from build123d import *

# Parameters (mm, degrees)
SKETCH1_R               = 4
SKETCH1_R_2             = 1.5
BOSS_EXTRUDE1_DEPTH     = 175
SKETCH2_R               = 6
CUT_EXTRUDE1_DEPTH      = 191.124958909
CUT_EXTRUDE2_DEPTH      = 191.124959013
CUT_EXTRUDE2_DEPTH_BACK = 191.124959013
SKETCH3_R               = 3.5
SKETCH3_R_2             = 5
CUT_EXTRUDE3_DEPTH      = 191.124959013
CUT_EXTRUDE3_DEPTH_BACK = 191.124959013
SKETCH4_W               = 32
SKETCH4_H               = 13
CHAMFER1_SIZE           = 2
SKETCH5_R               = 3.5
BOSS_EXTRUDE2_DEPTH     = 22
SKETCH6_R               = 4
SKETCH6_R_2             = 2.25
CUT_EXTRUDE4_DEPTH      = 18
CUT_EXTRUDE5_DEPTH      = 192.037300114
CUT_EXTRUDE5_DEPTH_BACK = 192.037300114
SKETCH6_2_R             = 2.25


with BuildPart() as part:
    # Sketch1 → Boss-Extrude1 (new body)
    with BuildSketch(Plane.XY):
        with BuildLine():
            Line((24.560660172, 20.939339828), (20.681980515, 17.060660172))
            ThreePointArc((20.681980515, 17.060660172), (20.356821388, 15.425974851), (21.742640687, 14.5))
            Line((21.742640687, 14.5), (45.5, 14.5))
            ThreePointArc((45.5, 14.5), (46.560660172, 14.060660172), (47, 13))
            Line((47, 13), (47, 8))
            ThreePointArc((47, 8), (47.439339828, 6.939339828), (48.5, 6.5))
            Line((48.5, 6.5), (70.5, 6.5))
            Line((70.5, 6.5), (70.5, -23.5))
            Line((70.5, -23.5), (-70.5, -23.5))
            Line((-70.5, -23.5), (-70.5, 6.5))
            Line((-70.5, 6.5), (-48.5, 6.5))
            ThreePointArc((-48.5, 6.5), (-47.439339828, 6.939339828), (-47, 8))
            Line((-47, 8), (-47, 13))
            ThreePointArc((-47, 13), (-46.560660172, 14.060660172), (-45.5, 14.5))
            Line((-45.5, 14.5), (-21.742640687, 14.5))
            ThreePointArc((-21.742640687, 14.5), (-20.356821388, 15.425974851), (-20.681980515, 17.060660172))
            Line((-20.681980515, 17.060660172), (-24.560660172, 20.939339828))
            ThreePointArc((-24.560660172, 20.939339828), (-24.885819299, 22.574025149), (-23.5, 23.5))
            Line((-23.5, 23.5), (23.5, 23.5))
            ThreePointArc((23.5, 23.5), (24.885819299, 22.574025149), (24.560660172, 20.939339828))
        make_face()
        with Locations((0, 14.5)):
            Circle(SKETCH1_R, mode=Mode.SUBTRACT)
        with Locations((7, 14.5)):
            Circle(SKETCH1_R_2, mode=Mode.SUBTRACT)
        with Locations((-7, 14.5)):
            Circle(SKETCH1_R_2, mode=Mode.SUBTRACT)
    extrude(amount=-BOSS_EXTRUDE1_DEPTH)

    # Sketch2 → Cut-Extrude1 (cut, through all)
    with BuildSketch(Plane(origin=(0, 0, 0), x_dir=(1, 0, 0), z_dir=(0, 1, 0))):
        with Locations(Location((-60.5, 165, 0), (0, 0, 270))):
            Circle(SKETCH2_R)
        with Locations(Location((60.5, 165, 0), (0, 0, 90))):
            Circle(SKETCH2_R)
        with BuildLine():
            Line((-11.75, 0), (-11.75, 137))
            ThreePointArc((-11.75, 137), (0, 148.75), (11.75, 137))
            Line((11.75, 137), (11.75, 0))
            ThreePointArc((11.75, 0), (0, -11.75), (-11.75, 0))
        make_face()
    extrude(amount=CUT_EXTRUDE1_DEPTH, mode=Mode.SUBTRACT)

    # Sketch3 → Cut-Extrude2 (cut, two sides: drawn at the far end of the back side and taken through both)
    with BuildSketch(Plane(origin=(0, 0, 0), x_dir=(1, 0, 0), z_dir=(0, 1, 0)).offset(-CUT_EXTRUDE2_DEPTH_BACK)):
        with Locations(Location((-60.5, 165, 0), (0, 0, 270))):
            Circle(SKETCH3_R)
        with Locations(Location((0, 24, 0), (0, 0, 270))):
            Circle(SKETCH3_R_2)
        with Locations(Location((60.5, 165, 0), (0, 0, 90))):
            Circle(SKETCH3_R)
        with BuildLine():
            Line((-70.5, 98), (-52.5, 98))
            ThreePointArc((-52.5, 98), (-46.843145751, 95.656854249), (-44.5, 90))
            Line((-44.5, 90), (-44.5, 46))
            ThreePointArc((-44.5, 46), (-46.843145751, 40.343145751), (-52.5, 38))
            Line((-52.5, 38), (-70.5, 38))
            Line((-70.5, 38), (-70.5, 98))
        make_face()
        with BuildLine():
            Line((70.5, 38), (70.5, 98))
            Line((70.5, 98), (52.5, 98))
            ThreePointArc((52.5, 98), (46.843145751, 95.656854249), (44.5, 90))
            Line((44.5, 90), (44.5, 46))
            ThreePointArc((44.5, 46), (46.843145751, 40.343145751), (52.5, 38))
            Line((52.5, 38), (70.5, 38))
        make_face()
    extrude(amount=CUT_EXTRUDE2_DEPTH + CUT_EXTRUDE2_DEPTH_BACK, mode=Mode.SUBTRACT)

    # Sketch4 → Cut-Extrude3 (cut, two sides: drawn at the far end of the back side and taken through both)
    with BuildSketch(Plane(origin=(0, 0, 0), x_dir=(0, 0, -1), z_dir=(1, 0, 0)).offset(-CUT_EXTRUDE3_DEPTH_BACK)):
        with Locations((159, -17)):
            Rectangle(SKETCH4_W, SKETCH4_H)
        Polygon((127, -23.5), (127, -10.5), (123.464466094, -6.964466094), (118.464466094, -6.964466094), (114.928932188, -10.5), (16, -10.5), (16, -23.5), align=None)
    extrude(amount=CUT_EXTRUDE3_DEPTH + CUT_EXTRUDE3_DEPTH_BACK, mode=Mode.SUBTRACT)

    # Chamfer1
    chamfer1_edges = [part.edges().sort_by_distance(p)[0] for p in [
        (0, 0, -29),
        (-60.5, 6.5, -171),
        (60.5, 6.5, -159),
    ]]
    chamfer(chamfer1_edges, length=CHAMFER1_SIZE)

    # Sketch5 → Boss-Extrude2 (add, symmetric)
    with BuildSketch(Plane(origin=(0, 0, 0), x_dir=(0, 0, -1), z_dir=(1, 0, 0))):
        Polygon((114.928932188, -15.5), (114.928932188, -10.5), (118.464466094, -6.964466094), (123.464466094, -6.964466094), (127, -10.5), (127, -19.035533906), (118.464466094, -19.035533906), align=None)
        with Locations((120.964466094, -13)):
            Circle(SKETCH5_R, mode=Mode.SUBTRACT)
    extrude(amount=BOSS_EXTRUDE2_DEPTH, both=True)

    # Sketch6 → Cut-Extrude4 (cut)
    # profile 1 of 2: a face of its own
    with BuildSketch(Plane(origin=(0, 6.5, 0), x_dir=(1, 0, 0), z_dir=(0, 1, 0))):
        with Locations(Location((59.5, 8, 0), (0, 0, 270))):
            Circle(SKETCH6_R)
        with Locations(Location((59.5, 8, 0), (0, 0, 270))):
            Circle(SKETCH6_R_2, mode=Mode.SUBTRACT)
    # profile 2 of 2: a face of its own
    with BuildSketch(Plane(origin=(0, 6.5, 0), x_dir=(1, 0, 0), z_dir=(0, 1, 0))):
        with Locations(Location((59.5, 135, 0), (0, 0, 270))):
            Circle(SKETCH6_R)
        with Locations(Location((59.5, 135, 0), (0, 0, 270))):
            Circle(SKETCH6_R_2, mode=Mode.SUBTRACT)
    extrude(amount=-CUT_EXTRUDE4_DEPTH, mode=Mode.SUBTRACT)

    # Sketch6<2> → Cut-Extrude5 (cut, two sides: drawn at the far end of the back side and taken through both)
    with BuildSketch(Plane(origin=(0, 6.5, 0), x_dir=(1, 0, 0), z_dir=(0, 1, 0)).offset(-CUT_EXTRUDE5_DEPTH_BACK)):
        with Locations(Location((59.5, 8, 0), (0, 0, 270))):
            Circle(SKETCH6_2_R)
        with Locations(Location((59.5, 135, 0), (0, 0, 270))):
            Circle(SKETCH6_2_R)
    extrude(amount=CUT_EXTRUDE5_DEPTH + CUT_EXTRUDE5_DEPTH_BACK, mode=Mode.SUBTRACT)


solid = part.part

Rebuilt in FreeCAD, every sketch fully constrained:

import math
import FreeCAD as App
import Part
import Sketcher


def edges_at(feature, points):
    """Names of the edges that pass closest to the given points."""
    edges = feature.Shape.Edges
    near = lambda p: min(range(len(edges)), key=lambda i: edges[i].distToShape(Part.Vertex(*p))[0])
    return sorted({f"Edge{near(p) + 1}" for p in points})

doc = App.newDocument("Part")
body = doc.addObject("PartDesign::Body", "Body")

sketch1 = doc.addObject("Sketcher::SketchObject", "Sketch")
body.addObject(sketch1)
sketch1.AttachmentSupport = (doc.XY_Plane, [""])
sketch1.MapMode = "FlatFace"
sketch1.addGeometry([
    Part.LineSegment(App.Vector(20.681981, 17.06066, 0), App.Vector(24.56066, 20.93934, 0)),
    Part.ArcOfCircle(Part.Circle(App.Vector(23.5, 22, 0), App.Vector(0, 0, 1), 1.5), math.radians(-45), math.radians(90)),
    Part.LineSegment(App.Vector(23.5, 23.5, 0), App.Vector(-23.5, 23.5, 0)),
    Part.ArcOfCircle(Part.Circle(App.Vector(-23.5, 22, 0), App.Vector(0, 0, 1), 1.5), math.radians(90), math.radians(225)),
    Part.LineSegment(App.Vector(-24.56066, 20.93934, 0), App.Vector(-20.681981, 17.06066, 0)),
    Part.ArcOfCircle(Part.Circle(App.Vector(-21.742641, 16, 0), App.Vector(0, 0, 1), 1.5), math.radians(-90), math.radians(45)),
    Part.LineSegment(App.Vector(-21.742641, 14.5, 0), App.Vector(-45.5, 14.5, 0)),
    Part.ArcOfCircle(Part.Circle(App.Vector(-45.5, 13, 0), App.Vector(0, 0, 1), 1.5), math.radians(90), math.radians(180)),
    Part.LineSegment(App.Vector(-47, 13, 0), App.Vector(-47, 8, 0)),
    Part.ArcOfCircle(Part.Circle(App.Vector(-48.5, 8, 0), App.Vector(0, 0, 1), 1.5), math.radians(-90), math.radians(0)),
    Part.LineSegment(App.Vector(-48.5, 6.5, 0), App.Vector(-70.5, 6.5, 0)),
    Part.LineSegment(App.Vector(-70.5, 6.5, 0), App.Vector(-70.5, -23.5, 0)),
    Part.LineSegment(App.Vector(-70.5, -23.5, 0), App.Vector(70.5, -23.5, 0)),
    Part.LineSegment(App.Vector(70.5, -23.5, 0), App.Vector(70.5, 6.5, 0)),
    Part.LineSegment(App.Vector(70.5, 6.5, 0), App.Vector(48.5, 6.5, 0)),
    Part.ArcOfCircle(Part.Circle(App.Vector(48.5, 8, 0), App.Vector(0, 0, 1), 1.5), math.radians(180), math.radians(270)),
    Part.LineSegment(App.Vector(47, 8, 0), App.Vector(47, 13, 0)),
    Part.ArcOfCircle(Part.Circle(App.Vector(45.5, 13, 0), App.Vector(0, 0, 1), 1.5), math.radians(0), math.radians(90)),
    Part.LineSegment(App.Vector(45.5, 14.5, 0), App.Vector(21.742641, 14.5, 0)),
    Part.ArcOfCircle(Part.Circle(App.Vector(21.742641, 16, 0), App.Vector(0, 0, 1), 1.5), math.radians(135), math.radians(270)),
    Part.Circle(App.Vector(7, 14.5, 0), App.Vector(0, 0, 1), 1.5),
    Part.Circle(App.Vector(0, 14.5, 0), App.Vector(0, 0, 1), 4),
    Part.Circle(App.Vector(-7, 14.5, 0), App.Vector(0, 0, 1), 1.5),
], False)
sketch1.addConstraint([
    Sketcher.Constraint("Tangent", 0, 2, 1, 1),
    Sketcher.Constraint("Tangent", 1, 2, 2, 1),
    Sketcher.Constraint("Tangent", 2, 2, 3, 1),
    Sketcher.Constraint("Tangent", 3, 2, 4, 1),
    Sketcher.Constraint("Tangent", 4, 2, 5, 2),
    Sketcher.Constraint("Tangent", 5, 1, 6, 1),
    Sketcher.Constraint("Tangent", 6, 2, 7, 1),
    Sketcher.Constraint("Tangent", 7, 2, 8, 1),
    Sketcher.Constraint("Tangent", 8, 2, 9, 2),
    Sketcher.Constraint("Tangent", 9, 1, 10, 1),
    Sketcher.Constraint("Coincident", 10, 2, 11, 1),
    Sketcher.Constraint("Coincident", 11, 2, 12, 1),
    Sketcher.Constraint("Coincident", 12, 2, 13, 1),
    Sketcher.Constraint("Coincident", 13, 2, 14, 1),
    Sketcher.Constraint("Tangent", 14, 2, 15, 2),
    Sketcher.Constraint("Tangent", 15, 1, 16, 1),
    Sketcher.Constraint("Tangent", 16, 2, 17, 1),
    Sketcher.Constraint("Tangent", 17, 2, 18, 1),
    Sketcher.Constraint("Tangent", 18, 2, 19, 2),
    Sketcher.Constraint("Tangent", 19, 1, 0, 1),
    Sketcher.Constraint("Horizontal", 2),
    Sketcher.Constraint("Horizontal", 6),
    Sketcher.Constraint("Vertical", 8),
    Sketcher.Constraint("Horizontal", 10),
    Sketcher.Constraint("Vertical", 11),
    Sketcher.Constraint("Horizontal", 12),
    Sketcher.Constraint("Vertical", 13),
    Sketcher.Constraint("Horizontal", 14),
    Sketcher.Constraint("Vertical", 16),
    Sketcher.Constraint("Horizontal", 18),
    Sketcher.Constraint("Equal", 1, 3),
    Sketcher.Constraint("Equal", 3, 5),
    Sketcher.Constraint("Equal", 5, 7),
    Sketcher.Constraint("Equal", 7, 9),
    Sketcher.Constraint("Equal", 9, 15),
    Sketcher.Constraint("Equal", 15, 17),
    Sketcher.Constraint("Equal", 17, 19),
    Sketcher.Constraint("Equal", 19, 20),
    Sketcher.Constraint("Equal", 20, 22),
    Sketcher.Constraint("Symmetric", 9, 3, 15, 3, -2),
    Sketcher.Constraint("Symmetric", 5, 3, 19, 3, -2),
    Sketcher.Constraint("Symmetric", 20, 3, 22, 3, -2),
    Sketcher.Constraint("PointOnObject", 21, 3, -2),
    Sketcher.Constraint("Perpendicular", 0, 4),
    Sketcher.Constraint("Horizontal", 20, 3, 21, 3),
    Sketcher.Constraint("Horizontal", 0, 2, 3, 2),
    Sketcher.Constraint("Horizontal", 22, 3, 5, 1),
    Sketcher.Constraint("Equal", 10, 14),
    Sketcher.Constraint("Diameter", 20, 3.0),
    Sketcher.Constraint("Diameter", 21, 8.0),
    Sketcher.Constraint("DistanceX", 2, 2, 2, 1, 47.0),
    Sketcher.Constraint("DistanceX", 10, 2, 10, 1, 22.0),
    Sketcher.Constraint("DistanceX", 12, 1, 12, 2, 141.0),
    Sketcher.Constraint("DistanceY", 8, 2, 8, 1, 5.0),
    Sketcher.Constraint("DistanceY", 11, 2, 11, 1, 30.0),
    Sketcher.Constraint("DistanceY", -1, 1, 1, 3, 22.0),
    Sketcher.Constraint("DistanceY", -1, 1, 5, 3, 16.0),
    Sketcher.Constraint("DistanceX", -1, 1, 20, 3, 7.0),
])
pad1 = doc.addObject("PartDesign::Pad", "Pad")
body.addObject(pad1)
pad1.Profile = sketch1
pad1.Length = 175
pad1.Reversed = True

sketch2 = doc.addObject("Sketcher::SketchObject", "Sketch001")
body.addObject(sketch2)
sketch2.AttachmentSupport = (doc.XZ_Plane, [""])
sketch2.MapMode = "FlatFace"
sketch2.addGeometry([
    Part.Circle(App.Vector(-60.5, -165, 0), App.Vector(0, 0, 1), 6),
    Part.Circle(App.Vector(60.5, -165, 0), App.Vector(0, 0, 1), 6),
    Part.LineSegment(App.Vector(-11.75, -137, 0), App.Vector(-11.75, 0, 0)),
    Part.ArcOfCircle(Part.Circle(App.Vector(0, 0, 0), App.Vector(0, 0, 1), 11.75), math.radians(0), math.radians(180)),
    Part.LineSegment(App.Vector(11.75, 0, 0), App.Vector(11.75, -137, 0)),
    Part.ArcOfCircle(Part.Circle(App.Vector(0, -137, 0), App.Vector(0, 0, 1), 11.75), math.radians(180), math.radians(360)),
], False)
sketch2.addConstraint([
    Sketcher.Constraint("Tangent", 2, 2, 3, 2),
    Sketcher.Constraint("Tangent", 3, 1, 4, 1),
    Sketcher.Constraint("Tangent", 4, 2, 5, 2),
    Sketcher.Constraint("Tangent", 5, 1, 2, 1),
    Sketcher.Constraint("Vertical", 2),
    Sketcher.Constraint("Vertical", 4),
    Sketcher.Constraint("Coincident", 3, 3, -1, 1),
    Sketcher.Constraint("Equal", 0, 1),
    Sketcher.Constraint("Symmetric", 0, 3, 1, 3, -2),
    Sketcher.Constraint("Diameter", 0, 12.0),
    Sketcher.Constraint("DistanceY", 2, 1, 2, 2, 137.0),
    Sketcher.Constraint("Radius", 3, 11.75),
    Sketcher.Constraint("DistanceY", 0, 3, -1, 1, 165.0),
    Sketcher.Constraint("DistanceX", 0, 3, 1, 3, 121.0),
])
pocket1 = doc.addObject("PartDesign::Pocket", "Pocket")
body.addObject(pocket1)
pocket1.Profile = sketch2
pocket1.Type = "ThroughAll"

sketch3 = doc.addObject("Sketcher::SketchObject", "Sketch002")
body.addObject(sketch3)
sketch3.AttachmentSupport = (doc.XZ_Plane, [""])
sketch3.MapMode = "FlatFace"
sketch3.addGeometry([
    Part.Circle(App.Vector(-60.5, -165, 0), App.Vector(0, 0, 1), 3.5),
    Part.Circle(App.Vector(0, -24, 0), App.Vector(0, 0, 1), 5),
    Part.Circle(App.Vector(60.5, -165, 0), App.Vector(0, 0, 1), 3.5),
    Part.LineSegment(App.Vector(-52.5, -98, 0), App.Vector(-70.5, -98, 0)),
    Part.LineSegment(App.Vector(-70.5, -98, 0), App.Vector(-70.5, -38, 0)),
    Part.LineSegment(App.Vector(-70.5, -38, 0), App.Vector(-52.5, -38, 0)),
    Part.ArcOfCircle(Part.Circle(App.Vector(-52.5, -46, 0), App.Vector(0, 0, 1), 8), math.radians(0), math.radians(90)),
    Part.LineSegment(App.Vector(-44.5, -46, 0), App.Vector(-44.5, -90, 0)),
    Part.ArcOfCircle(Part.Circle(App.Vector(-52.5, -90, 0), App.Vector(0, 0, 1), 8), math.radians(-90), math.radians(0)),
    Part.LineSegment(App.Vector(70.5, -38, 0), App.Vector(70.5, -98, 0)),
    Part.LineSegment(App.Vector(70.5, -98, 0), App.Vector(52.5, -98, 0)),
    Part.ArcOfCircle(Part.Circle(App.Vector(52.5, -90, 0), App.Vector(0, 0, 1), 8), math.radians(-180), math.radians(-90)),
    Part.LineSegment(App.Vector(44.5, -90, 0), App.Vector(44.5, -46, 0)),
    Part.ArcOfCircle(Part.Circle(App.Vector(52.5, -46, 0), App.Vector(0, 0, 1), 8), math.radians(90), math.radians(180)),
    Part.LineSegment(App.Vector(52.5, -38, 0), App.Vector(70.5, -38, 0)),
], False)
sketch3.addConstraint([
    Sketcher.Constraint("Coincident", 3, 2, 4, 1),
    Sketcher.Constraint("Coincident", 4, 2, 5, 1),
    Sketcher.Constraint("Tangent", 5, 2, 6, 2),
    Sketcher.Constraint("Tangent", 6, 1, 7, 1),
    Sketcher.Constraint("Tangent", 7, 2, 8, 2),
    Sketcher.Constraint("Tangent", 8, 1, 3, 1),
    Sketcher.Constraint("Coincident", 9, 2, 10, 1),
    Sketcher.Constraint("Tangent", 10, 2, 11, 2),
    Sketcher.Constraint("Tangent", 11, 1, 12, 1),
    Sketcher.Constraint("Tangent", 12, 2, 13, 2),
    Sketcher.Constraint("Tangent", 13, 1, 14, 1),
    Sketcher.Constraint("Coincident", 14, 2, 9, 1),
    Sketcher.Constraint("Horizontal", 3),
    Sketcher.Constraint("Vertical", 4),
    Sketcher.Constraint("Horizontal", 5),
    Sketcher.Constraint("Vertical", 7),
    Sketcher.Constraint("Vertical", 9),
    Sketcher.Constraint("Horizontal", 10),
    Sketcher.Constraint("Vertical", 12),
    Sketcher.Constraint("Horizontal", 14),
    Sketcher.Constraint("Equal", 0, 2),
    Sketcher.Constraint("Equal", 6, 8),
    Sketcher.Constraint("Equal", 8, 11),
    Sketcher.Constraint("Equal", 11, 13),
    Sketcher.Constraint("Symmetric", 0, 3, 2, 3, -2),
    Sketcher.Constraint("Symmetric", 8, 3, 11, 3, -2),
    Sketcher.Constraint("Symmetric", 4, 2, 14, 2, -2),
    Sketcher.Constraint("PointOnObject", 1, 3, -2),
    Sketcher.Constraint("Diameter", 0, 7.0),
    Sketcher.Constraint("Diameter", 1, 10.0),
    Sketcher.Constraint("Radius", 6, 8.0),
    Sketcher.Constraint("DistanceX", 3, 2, 3, 1, 18.0),
    Sketcher.Constraint("DistanceY", 4, 1, 4, 2, 60.0),
    Sketcher.Constraint("DistanceY", 0, 3, -1, 1, 165.0),
    Sketcher.Constraint("DistanceY", 1, 3, -1, 1, 24.0),
    Sketcher.Constraint("DistanceY", 6, 3, -1, 1, 46.0),
    Sketcher.Constraint("DistanceX", 0, 3, 2, 3, 121.0),
    Sketcher.Constraint("DistanceX", 0, 3, 6, 3, 8.0),
])
pocket2 = doc.addObject("PartDesign::Pocket", "Pocket001")
body.addObject(pocket2)
pocket2.Profile = sketch3
pocket2.Type = "ThroughAll"
pocket2.Midplane = True

sketch4 = doc.addObject("Sketcher::SketchObject", "Sketch003")
body.addObject(sketch4)
sketch4.AttachmentSupport = (doc.YZ_Plane, [""])
sketch4.MapMode = "FlatFace"
sketch4.addGeometry([
    Part.LineSegment(App.Vector(-10.5, -143, 0), App.Vector(-23.5, -143, 0)),
    Part.LineSegment(App.Vector(-23.5, -143, 0), App.Vector(-23.5, -175, 0)),
    Part.LineSegment(App.Vector(-23.5, -175, 0), App.Vector(-10.5, -175, 0)),
    Part.LineSegment(App.Vector(-10.5, -175, 0), App.Vector(-10.5, -143, 0)),
    Part.LineSegment(App.Vector(-23.5, -127, 0), App.Vector(-10.5, -127, 0)),
    Part.LineSegment(App.Vector(-10.5, -127, 0), App.Vector(-6.964466, -123.464466, 0)),
    Part.LineSegment(App.Vector(-6.964466, -123.464466, 0), App.Vector(-6.964466, -118.464466, 0)),
    Part.LineSegment(App.Vector(-6.964466, -118.464466, 0), App.Vector(-10.5, -114.928932, 0)),
    Part.LineSegment(App.Vector(-10.5, -114.928932, 0), App.Vector(-10.5, -16, 0)),
    Part.LineSegment(App.Vector(-10.5, -16, 0), App.Vector(-23.5, -16, 0)),
    Part.LineSegment(App.Vector(-23.5, -16, 0), App.Vector(-23.5, -127, 0)),
], False)
sketch4.addConstraint([
    Sketcher.Constraint("Coincident", 0, 2, 1, 1),
    Sketcher.Constraint("Coincident", 1, 2, 2, 1),
    Sketcher.Constraint("Coincident", 2, 2, 3, 1),
    Sketcher.Constraint("Coincident", 3, 2, 0, 1),
    Sketcher.Constraint("Coincident", 4, 2, 5, 1),
    Sketcher.Constraint("Coincident", 5, 2, 6, 1),
    Sketcher.Constraint("Coincident", 6, 2, 7, 1),
    Sketcher.Constraint("Coincident", 7, 2, 8, 1),
    Sketcher.Constraint("Coincident", 8, 2, 9, 1),
    Sketcher.Constraint("Coincident", 9, 2, 10, 1),
    Sketcher.Constraint("Coincident", 10, 2, 4, 1),
    Sketcher.Constraint("Horizontal", 0),
    Sketcher.Constraint("Vertical", 1),
    Sketcher.Constraint("Horizontal", 2),
    Sketcher.Constraint("Vertical", 3),
    Sketcher.Constraint("Horizontal", 4),
    Sketcher.Constraint("Vertical", 6),
    Sketcher.Constraint("Vertical", 8),
    Sketcher.Constraint("Horizontal", 9),
    Sketcher.Constraint("Vertical", 10),
    Sketcher.Constraint("Perpendicular", 5, 7),
    Sketcher.Constraint("Vertical", 3, 2, 4, 2),
    Sketcher.Constraint("Vertical", 4, 2, 7, 2),
    Sketcher.Constraint("Vertical", 1, 2, 9, 2),
    Sketcher.Constraint("Equal", 5, 7),
    Sketcher.Constraint("DistanceX", 0, 2, 0, 1, 13.0),
    Sketcher.Constraint("DistanceY", 1, 2, 1, 1, 32.0),
    Sketcher.Constraint("DistanceY", 6, 1, 6, 2, 5.0),
    Sketcher.Constraint("DistanceY", 10, 2, 10, 1, 111.0),
    Sketcher.Constraint("Distance", 5, 5.0),
    Sketcher.Constraint("DistanceY", 0, 2, -1, 1, 143.0),
    Sketcher.Constraint("DistanceY", 4, 2, -1, 1, 127.0),
    Sketcher.Constraint("DistanceX", 0, 2, -1, 1, 23.5),
])
pocket3 = doc.addObject("PartDesign::Pocket", "Pocket002")
body.addObject(pocket3)
pocket3.Profile = sketch4
pocket3.Type = "ThroughAll"
pocket3.Midplane = True
doc.recompute()

chamfer = doc.addObject("PartDesign::Chamfer", "Chamfer")
body.addObject(chamfer)
chamfer.Base = (pocket3, edges_at(pocket3, [(0, 0, -29), (-60.5, 6.5, -171), (60.5, 6.5, -159)]))
chamfer.Size = 2

sketch5 = doc.addObject("Sketcher::SketchObject", "Sketch004")
body.addObject(sketch5)
sketch5.AttachmentSupport = (doc.YZ_Plane, [""])
sketch5.MapMode = "FlatFace"
sketch5.addGeometry([
    Part.LineSegment(App.Vector(-10.5, -114.928932, 0), App.Vector(-15.5, -114.928932, 0)),
    Part.LineSegment(App.Vector(-15.5, -114.928932, 0), App.Vector(-19.035534, -118.464466, 0)),
    Part.LineSegment(App.Vector(-19.035534, -118.464466, 0), App.Vector(-19.035534, -127, 0)),
    Part.LineSegment(App.Vector(-19.035534, -127, 0), App.Vector(-10.5, -127, 0)),
    Part.LineSegment(App.Vector(-10.5, -127, 0), App.Vector(-6.964466, -123.464466, 0)),
    Part.LineSegment(App.Vector(-6.964466, -123.464466, 0), App.Vector(-6.964466, -118.464466, 0)),
    Part.LineSegment(App.Vector(-6.964466, -118.464466, 0), App.Vector(-10.5, -114.928932, 0)),
    Part.Circle(App.Vector(-13, -120.964466, 0), App.Vector(0, 0, 1), 3.5),
], False)
sketch5.addConstraint([
    Sketcher.Constraint("Coincident", 0, 2, 1, 1),
    Sketcher.Constraint("Coincident", 1, 2, 2, 1),
    Sketcher.Constraint("Coincident", 2, 2, 3, 1),
    Sketcher.Constraint("Coincident", 3, 2, 4, 1),
    Sketcher.Constraint("Coincident", 4, 2, 5, 1),
    Sketcher.Constraint("Coincident", 5, 2, 6, 1),
    Sketcher.Constraint("Coincident", 6, 2, 0, 1),
    Sketcher.Constraint("Horizontal", 0),
    Sketcher.Constraint("Vertical", 2),
    Sketcher.Constraint("Horizontal", 3),
    Sketcher.Constraint("Vertical", 5),
    Sketcher.Constraint("Parallel", 1, 4),
    Sketcher.Constraint("Perpendicular", 4, 6),
    Sketcher.Constraint("Horizontal", 1, 2, 5, 2),
    Sketcher.Constraint("Vertical", 3, 2, 6, 2),
    Sketcher.Constraint("Equal", 3, 2),
    Sketcher.Constraint("Equal", 0, 5),
    Sketcher.Constraint("Diameter", 7, 7.0),
    Sketcher.Constraint("DistanceX", 0, 2, 0, 1, 5.0),
    Sketcher.Constraint("Distance", 1, 5.0),
    Sketcher.Constraint("DistanceX", 7, 3, -1, 1, 13.0),
    Sketcher.Constraint("DistanceY", 2, 2, -1, 1, 127.0),
    Sketcher.Constraint("DistanceX", 0, 2, -1, 1, 15.5),
    Sketcher.Constraint("DistanceY", 7, 3, 1, 2, 2.5),
])
pad2 = doc.addObject("PartDesign::Pad", "Pad001")
body.addObject(pad2)
pad2.Profile = sketch5
pad2.Length = 44
pad2.Midplane = True

sketch6 = doc.addObject("Sketcher::SketchObject", "Sketch005")
body.addObject(sketch6)
sketch6.AttachmentSupport = (doc.XZ_Plane, [""])
sketch6.MapMode = "FlatFace"
sketch6.AttachmentOffset = App.Placement(App.Vector(0, 0, -6.5), App.Rotation())
sketch6.addGeometry([
    Part.Circle(App.Vector(59.5, -8, 0), App.Vector(0, 0, 1), 4),
    Part.Circle(App.Vector(59.5, -8, 0), App.Vector(0, 0, 1), 2.25),
    Part.Circle(App.Vector(59.5, -135, 0), App.Vector(0, 0, 1), 4),
    Part.Circle(App.Vector(59.5, -135, 0), App.Vector(0, 0, 1), 2.25),
], False)
sketch6.addConstraint([
    Sketcher.Constraint("Coincident", 1, 3, 0, 3),
    Sketcher.Constraint("Coincident", 3, 3, 2, 3),
    Sketcher.Constraint("Equal", 0, 2),
    Sketcher.Constraint("Equal", 1, 3),
    Sketcher.Constraint("Vertical", 1, 3, 2, 3),
    Sketcher.Constraint("Diameter", 0, 8.0),
    Sketcher.Constraint("Diameter", 1, 4.5),
    Sketcher.Constraint("DistanceY", 0, 3, -1, 1, 8.0),
    Sketcher.Constraint("DistanceY", 2, 3, -1, 1, 135.0),
    Sketcher.Constraint("DistanceX", -1, 1, 0, 3, 59.5),
])
pocket4 = doc.addObject("PartDesign::Pocket", "Pocket003")
body.addObject(pocket4)
pocket4.Profile = sketch6
pocket4.Length = 18
pocket4.Reversed = True

sketch7 = doc.addObject("Sketcher::SketchObject", "Sketch006")
body.addObject(sketch7)
sketch7.AttachmentSupport = (doc.XZ_Plane, [""])
sketch7.MapMode = "FlatFace"
sketch7.AttachmentOffset = App.Placement(App.Vector(0, 0, -6.5), App.Rotation())
sketch7.addGeometry([
    Part.Circle(App.Vector(59.5, -8, 0), App.Vector(0, 0, 1), 2.25),
    Part.Circle(App.Vector(59.5, -135, 0), App.Vector(0, 0, 1), 2.25),
], False)
sketch7.addConstraint([
    Sketcher.Constraint("Equal", 0, 1),
    Sketcher.Constraint("Vertical", 0, 3, 1, 3),
    Sketcher.Constraint("Diameter", 0, 4.5),
    Sketcher.Constraint("DistanceY", 0, 3, -1, 1, 8.0),
    Sketcher.Constraint("DistanceY", 1, 3, -1, 1, 135.0),
    Sketcher.Constraint("DistanceX", -1, 1, 0, 3, 59.5),
])
pocket5 = doc.addObject("PartDesign::Pocket", "Pocket004")
body.addObject(pocket5)
pocket5.Profile = sketch7
pocket5.Type = "ThroughAll"
pocket5.Midplane = True

doc.recompute()
